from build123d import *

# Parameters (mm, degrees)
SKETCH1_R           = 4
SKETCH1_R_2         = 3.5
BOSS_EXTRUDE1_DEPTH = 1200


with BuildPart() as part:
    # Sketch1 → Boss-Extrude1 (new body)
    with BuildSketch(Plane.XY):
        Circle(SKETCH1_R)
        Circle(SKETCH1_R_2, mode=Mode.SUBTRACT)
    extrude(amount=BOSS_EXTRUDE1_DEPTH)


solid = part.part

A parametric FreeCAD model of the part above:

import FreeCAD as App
import Part
import Sketcher

V = App.Vector
Q = App.Units.Quantity

doc = App.newDocument("Part")
body = doc.addObject("PartDesign::Body", "Body")

# Sketch on XY plane
sketch1 = body.newObject("Sketcher::SketchObject", "Sketch")
sketch1.AttachmentSupport = (doc.getObject("XY_Plane"), [""])
sketch1.MapMode = "FlatFace"
sketch1.addGeometry([
    Part.Circle(V(0, 0, 0), V(0, 0, 1), 4),
    Part.Circle(V(0, 0, 0), V(0, 0, 1), 3.5),
], False)
sketch1.addConstraint([
    Sketcher.Constraint("Coincident", 0, 3, -1, 1),
    Sketcher.Constraint("Coincident", 1, 3, -1, 1),
    Sketcher.Constraint("Diameter", 0, Q("8 mm")),
    Sketcher.Constraint("Diameter", 1, Q("7 mm")),
])
pad1 = body.newObject("PartDesign::Pad", "Pad")
pad1.Profile = sketch1
pad1.Length = 1200

doc.recompute()
